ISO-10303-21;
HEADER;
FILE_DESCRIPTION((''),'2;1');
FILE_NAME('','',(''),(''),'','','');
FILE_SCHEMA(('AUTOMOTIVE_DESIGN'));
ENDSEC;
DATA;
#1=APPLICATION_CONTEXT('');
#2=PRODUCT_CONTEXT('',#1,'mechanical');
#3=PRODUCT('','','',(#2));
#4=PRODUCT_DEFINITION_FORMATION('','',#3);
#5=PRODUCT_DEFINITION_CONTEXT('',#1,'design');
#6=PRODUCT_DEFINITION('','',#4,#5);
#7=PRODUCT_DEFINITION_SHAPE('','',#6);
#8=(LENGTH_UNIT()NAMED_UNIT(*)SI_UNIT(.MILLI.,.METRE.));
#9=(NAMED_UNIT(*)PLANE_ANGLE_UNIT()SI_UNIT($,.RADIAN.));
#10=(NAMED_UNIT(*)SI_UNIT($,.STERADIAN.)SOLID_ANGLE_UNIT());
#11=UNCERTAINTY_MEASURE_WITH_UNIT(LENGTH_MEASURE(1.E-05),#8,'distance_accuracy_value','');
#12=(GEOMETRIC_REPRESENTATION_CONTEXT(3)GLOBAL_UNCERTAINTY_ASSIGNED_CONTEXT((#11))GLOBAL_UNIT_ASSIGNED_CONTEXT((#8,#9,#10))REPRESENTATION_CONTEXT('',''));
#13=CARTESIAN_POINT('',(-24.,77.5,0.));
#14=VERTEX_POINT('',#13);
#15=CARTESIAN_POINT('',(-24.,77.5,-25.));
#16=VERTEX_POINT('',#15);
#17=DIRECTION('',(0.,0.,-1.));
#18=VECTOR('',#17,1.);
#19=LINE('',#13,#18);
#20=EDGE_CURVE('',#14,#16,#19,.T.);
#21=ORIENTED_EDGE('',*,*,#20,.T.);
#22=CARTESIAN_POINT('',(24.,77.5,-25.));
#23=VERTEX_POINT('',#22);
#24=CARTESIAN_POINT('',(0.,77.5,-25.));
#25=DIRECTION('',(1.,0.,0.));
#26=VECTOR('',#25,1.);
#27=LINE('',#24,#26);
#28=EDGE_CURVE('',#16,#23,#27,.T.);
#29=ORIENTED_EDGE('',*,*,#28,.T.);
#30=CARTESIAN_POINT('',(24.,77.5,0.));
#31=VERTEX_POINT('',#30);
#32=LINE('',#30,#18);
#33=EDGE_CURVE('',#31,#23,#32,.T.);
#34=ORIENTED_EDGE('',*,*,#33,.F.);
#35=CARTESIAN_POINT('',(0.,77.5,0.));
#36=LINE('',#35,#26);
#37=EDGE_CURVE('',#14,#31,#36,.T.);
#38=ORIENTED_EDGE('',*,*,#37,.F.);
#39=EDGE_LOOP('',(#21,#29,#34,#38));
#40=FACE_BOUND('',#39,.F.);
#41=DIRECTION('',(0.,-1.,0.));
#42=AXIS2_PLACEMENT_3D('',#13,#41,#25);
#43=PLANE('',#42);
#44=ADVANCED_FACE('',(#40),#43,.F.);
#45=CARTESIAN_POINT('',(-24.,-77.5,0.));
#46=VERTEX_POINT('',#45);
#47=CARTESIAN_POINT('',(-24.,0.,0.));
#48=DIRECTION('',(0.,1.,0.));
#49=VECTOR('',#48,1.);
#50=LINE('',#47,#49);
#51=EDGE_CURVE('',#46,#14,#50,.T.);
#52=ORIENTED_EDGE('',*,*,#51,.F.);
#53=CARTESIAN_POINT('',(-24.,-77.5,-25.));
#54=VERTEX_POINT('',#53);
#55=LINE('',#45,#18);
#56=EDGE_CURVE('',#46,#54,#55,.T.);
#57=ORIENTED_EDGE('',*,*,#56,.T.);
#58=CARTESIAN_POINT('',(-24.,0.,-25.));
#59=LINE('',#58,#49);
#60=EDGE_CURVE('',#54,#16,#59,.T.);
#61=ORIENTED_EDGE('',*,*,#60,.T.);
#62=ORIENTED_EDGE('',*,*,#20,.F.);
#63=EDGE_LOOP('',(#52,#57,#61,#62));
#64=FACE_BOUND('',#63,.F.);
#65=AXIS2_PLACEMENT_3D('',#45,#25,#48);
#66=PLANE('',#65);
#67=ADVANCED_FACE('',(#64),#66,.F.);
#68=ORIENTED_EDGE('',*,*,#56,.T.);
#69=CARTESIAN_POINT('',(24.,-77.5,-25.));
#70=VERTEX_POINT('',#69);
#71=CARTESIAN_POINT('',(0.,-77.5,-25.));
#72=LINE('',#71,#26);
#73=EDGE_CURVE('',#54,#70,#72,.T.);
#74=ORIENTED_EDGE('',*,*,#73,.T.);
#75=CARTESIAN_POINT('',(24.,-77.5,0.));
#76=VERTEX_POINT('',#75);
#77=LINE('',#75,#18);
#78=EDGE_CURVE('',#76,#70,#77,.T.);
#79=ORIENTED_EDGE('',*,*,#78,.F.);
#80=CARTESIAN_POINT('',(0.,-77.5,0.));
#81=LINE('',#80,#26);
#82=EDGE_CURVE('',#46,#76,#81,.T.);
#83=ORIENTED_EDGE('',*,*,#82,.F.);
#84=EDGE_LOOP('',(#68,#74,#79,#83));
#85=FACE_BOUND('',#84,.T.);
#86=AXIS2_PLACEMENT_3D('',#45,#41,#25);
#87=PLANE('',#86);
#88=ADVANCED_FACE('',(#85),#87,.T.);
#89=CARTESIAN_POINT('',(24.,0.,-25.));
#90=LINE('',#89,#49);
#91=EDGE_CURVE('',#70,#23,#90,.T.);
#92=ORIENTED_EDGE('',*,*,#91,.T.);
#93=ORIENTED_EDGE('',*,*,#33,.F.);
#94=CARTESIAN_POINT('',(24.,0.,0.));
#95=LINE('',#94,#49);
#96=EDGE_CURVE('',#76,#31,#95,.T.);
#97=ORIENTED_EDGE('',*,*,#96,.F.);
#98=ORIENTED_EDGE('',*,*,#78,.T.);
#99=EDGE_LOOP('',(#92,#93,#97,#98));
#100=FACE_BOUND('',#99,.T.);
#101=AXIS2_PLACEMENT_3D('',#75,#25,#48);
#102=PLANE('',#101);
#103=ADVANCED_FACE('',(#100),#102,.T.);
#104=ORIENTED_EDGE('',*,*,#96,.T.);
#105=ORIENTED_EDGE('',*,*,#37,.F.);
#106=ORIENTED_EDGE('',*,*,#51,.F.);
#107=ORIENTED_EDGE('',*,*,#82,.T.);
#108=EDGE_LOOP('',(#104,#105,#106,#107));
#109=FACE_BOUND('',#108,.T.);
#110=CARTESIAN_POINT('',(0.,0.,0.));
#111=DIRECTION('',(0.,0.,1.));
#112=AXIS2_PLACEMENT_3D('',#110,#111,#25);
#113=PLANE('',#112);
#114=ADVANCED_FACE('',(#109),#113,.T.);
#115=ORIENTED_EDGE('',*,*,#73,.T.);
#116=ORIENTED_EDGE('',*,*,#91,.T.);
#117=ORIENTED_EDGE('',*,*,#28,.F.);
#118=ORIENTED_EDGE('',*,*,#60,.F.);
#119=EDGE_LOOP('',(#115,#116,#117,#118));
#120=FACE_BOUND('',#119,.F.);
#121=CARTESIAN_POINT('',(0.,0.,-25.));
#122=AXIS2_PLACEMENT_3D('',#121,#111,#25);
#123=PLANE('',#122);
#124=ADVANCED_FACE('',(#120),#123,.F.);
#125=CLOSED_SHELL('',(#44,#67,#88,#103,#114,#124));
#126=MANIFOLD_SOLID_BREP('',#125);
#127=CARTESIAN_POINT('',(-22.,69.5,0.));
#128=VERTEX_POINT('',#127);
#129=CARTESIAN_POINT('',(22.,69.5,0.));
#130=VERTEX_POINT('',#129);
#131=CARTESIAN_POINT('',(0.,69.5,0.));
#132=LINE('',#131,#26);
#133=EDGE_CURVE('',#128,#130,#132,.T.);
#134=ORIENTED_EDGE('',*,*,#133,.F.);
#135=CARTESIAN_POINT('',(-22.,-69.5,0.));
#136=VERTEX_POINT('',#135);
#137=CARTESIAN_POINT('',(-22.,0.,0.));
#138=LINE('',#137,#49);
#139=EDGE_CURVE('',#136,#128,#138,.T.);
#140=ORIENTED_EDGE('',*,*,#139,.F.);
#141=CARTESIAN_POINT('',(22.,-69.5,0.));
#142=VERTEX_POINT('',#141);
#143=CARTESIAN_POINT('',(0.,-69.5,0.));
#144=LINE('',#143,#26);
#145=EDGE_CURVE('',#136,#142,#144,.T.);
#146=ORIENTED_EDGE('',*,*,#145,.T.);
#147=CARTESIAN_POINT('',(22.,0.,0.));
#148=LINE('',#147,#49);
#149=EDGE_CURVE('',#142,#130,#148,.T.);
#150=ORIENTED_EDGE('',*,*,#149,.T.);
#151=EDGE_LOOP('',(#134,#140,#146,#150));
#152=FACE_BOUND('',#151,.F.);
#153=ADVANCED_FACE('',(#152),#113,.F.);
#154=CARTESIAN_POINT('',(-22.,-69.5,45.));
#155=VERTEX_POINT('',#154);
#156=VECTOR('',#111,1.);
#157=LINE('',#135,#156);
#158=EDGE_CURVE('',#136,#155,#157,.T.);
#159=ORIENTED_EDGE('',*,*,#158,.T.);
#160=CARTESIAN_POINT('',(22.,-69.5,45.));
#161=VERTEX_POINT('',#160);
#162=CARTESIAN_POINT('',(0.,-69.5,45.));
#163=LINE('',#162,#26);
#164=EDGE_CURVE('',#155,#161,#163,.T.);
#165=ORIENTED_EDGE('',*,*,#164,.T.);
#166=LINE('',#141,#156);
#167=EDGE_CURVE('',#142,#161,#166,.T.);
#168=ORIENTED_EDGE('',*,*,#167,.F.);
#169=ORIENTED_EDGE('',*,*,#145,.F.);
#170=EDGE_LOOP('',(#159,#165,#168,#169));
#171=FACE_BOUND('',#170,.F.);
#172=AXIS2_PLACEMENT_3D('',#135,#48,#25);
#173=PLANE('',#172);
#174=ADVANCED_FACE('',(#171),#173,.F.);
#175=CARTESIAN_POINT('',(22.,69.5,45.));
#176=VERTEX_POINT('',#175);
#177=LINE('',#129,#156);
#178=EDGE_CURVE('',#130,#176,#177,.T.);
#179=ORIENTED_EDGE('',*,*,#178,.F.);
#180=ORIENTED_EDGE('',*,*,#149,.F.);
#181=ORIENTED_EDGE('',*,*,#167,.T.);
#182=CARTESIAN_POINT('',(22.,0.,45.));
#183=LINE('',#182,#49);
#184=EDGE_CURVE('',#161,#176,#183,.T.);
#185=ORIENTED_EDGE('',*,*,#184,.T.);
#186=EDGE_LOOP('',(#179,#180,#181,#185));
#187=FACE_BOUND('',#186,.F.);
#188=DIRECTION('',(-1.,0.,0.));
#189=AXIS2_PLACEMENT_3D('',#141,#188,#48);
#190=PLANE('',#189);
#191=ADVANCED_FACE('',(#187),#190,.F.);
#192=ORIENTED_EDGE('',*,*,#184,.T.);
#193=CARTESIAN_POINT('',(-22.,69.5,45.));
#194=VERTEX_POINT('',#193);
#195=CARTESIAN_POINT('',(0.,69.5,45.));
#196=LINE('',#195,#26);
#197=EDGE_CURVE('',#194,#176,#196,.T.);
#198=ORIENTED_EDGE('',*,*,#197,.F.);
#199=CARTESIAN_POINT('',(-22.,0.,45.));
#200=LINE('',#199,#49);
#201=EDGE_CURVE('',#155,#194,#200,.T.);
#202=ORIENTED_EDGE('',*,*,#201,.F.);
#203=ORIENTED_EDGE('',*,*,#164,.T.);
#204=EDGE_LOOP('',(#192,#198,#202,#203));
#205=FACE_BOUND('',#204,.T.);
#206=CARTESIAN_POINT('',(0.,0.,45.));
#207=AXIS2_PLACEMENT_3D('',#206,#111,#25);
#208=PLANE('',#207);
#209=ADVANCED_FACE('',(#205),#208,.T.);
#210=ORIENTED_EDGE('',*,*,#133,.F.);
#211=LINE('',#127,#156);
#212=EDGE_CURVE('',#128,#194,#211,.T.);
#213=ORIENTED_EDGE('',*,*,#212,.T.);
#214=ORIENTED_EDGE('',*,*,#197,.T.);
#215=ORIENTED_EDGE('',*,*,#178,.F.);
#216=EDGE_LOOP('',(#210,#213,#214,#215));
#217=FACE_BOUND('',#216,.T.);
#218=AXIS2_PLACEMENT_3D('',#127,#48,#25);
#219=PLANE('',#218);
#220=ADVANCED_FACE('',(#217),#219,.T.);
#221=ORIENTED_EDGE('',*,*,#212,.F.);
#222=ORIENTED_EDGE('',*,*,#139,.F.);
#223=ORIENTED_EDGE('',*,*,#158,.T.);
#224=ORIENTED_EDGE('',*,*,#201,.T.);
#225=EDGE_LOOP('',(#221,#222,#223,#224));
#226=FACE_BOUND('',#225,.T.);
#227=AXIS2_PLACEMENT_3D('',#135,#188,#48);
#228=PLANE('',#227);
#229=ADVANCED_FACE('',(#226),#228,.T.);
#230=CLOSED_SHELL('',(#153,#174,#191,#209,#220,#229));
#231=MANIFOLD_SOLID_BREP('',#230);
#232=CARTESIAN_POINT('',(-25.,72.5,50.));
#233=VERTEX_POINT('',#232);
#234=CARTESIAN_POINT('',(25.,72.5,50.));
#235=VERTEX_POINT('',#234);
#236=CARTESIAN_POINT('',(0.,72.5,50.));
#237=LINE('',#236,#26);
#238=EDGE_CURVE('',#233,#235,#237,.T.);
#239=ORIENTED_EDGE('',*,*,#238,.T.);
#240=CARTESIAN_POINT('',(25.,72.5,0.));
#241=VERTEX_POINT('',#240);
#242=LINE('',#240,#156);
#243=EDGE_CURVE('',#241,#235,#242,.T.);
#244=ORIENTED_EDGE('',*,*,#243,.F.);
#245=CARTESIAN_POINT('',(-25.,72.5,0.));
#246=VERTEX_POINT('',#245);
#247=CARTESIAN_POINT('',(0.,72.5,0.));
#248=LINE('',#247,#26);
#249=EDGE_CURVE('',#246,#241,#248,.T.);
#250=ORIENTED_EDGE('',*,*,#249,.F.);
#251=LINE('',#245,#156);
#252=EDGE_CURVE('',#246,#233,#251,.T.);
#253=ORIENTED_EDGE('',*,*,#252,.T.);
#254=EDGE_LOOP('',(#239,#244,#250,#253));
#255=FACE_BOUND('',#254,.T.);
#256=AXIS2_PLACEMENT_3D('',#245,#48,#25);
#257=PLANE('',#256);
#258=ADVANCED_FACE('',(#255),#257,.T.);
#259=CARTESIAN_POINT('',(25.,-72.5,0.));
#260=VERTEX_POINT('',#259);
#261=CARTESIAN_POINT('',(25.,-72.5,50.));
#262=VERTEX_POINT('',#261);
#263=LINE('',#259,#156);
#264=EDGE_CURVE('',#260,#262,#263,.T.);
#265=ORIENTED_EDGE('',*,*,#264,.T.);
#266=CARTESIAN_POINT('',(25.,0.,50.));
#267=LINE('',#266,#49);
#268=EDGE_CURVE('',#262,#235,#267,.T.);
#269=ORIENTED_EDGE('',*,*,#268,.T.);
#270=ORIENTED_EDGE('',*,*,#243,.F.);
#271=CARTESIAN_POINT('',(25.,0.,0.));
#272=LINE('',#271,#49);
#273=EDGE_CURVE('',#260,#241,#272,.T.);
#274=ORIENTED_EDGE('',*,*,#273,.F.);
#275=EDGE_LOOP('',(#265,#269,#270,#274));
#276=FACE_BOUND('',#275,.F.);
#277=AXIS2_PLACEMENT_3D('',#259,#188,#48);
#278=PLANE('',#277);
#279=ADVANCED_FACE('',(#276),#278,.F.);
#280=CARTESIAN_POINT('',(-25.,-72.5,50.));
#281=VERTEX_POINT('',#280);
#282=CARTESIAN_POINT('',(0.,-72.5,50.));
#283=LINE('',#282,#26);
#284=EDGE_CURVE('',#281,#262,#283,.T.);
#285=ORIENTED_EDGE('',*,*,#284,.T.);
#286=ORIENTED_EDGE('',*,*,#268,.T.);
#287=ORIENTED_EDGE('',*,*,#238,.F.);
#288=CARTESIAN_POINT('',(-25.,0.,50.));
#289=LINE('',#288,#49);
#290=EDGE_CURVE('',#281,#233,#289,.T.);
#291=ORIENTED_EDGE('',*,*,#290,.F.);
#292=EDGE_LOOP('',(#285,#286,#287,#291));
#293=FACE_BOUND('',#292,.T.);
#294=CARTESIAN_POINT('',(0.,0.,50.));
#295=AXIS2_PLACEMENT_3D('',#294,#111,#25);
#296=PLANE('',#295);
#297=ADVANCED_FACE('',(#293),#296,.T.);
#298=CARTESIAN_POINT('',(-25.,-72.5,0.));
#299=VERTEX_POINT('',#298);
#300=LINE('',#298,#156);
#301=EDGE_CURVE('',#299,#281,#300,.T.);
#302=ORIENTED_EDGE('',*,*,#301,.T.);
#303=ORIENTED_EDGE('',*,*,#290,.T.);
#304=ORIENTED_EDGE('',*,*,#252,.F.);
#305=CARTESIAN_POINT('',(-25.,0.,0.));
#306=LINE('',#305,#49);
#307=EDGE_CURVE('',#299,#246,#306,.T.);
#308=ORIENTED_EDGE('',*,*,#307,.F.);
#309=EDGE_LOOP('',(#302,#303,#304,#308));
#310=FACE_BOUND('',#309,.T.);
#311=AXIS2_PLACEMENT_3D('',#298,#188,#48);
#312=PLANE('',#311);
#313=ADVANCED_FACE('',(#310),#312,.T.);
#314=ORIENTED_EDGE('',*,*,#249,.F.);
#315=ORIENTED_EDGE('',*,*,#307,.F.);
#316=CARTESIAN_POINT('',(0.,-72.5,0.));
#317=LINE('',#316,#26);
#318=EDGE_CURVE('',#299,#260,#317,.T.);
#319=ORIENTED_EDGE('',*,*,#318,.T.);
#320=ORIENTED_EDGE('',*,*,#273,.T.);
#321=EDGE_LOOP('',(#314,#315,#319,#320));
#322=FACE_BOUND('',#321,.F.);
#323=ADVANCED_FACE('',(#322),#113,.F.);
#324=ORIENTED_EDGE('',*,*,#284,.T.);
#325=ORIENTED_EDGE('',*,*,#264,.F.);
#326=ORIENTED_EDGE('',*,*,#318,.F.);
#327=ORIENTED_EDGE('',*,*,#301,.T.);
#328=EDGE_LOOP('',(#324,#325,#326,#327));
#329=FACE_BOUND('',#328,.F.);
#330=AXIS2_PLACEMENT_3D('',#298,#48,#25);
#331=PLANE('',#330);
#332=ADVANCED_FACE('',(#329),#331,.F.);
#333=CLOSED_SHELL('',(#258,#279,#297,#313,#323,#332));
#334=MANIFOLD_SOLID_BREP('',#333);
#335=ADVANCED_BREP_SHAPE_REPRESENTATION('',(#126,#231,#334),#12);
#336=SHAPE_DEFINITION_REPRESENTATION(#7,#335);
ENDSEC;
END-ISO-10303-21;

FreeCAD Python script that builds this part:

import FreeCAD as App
import Part
import Sketcher

V = App.Vector


def add_polygon(sketch, points):
    """Adds a closed chain of lines whose ends are joined by coincident constraints."""
    first, n = sketch.GeometryCount, len(points)
    for a, b in zip(points, points[1:] + points[:1]):
        sketch.addGeometry(Part.LineSegment(App.Vector(*a, 0), App.Vector(*b, 0)), False)
    for i in range(n):
        sketch.addConstraint(Sketcher.Constraint("Coincident", first + i, 2, first + (i + 1) % n, 1))

doc = App.newDocument("Part")
params = doc.addObject("Spreadsheet::Sheet", "Params")
for row, (alias, value) in enumerate([
    ("sketch1_width", "44 mm"),
    ("sketch1_height", "139 mm"),
    ("pad1_length", "45 mm"),
    ("sketch2_width", "50 mm"),
    ("sketch2_height", "145 mm"),
    ("pad2_length", "50 mm"),
    ("sketch3_width", "48 mm"),
    ("sketch3_height", "155 mm"),
    ("pad3_length", "25 mm"),
], start=1):
    params.set(f"A{row}", alias)
    params.set(f"B{row}", "=" + value)
    params.setAlias(f"B{row}", alias)

body = doc.addObject("PartDesign::Body", "Body")

# Sketch on XY plane
sketch1 = body.newObject("Sketcher::SketchObject", "Sketch")
sketch1.AttachmentSupport = (doc.getObject("XY_Plane"), [""])
sketch1.MapMode = "FlatFace"
add_polygon(sketch1, [(-22, 69.5), (-22, -69.5), (22, -69.5), (22, 69.5)])  # lines 0-3
sketch1.addConstraint([
    Sketcher.Constraint("Vertical", 0),
    Sketcher.Constraint("Horizontal", 1),
    Sketcher.Constraint("Vertical", 2),
    Sketcher.Constraint("Horizontal", 3),
    Sketcher.Constraint("Symmetric", 0, 2, 2, 2, -1, 1),
    Sketcher.Constraint("DistanceX", 1, 1, 1, 2, 44.0),
    Sketcher.Constraint("DistanceY", 0, 2, 0, 1, 139.0),
])
sketch1.setExpression("Constraints[9]", "Params.sketch1_width")
sketch1.setExpression("Constraints[10]", "Params.sketch1_height")
pad1 = body.newObject("PartDesign::Pad", "Pad")
pad1.Profile = sketch1
pad1.setExpression("Length", "Params.pad1_length")
body2 = doc.addObject("PartDesign::Body", "Body001")

# Sketch on XY plane
sketch2 = body2.newObject("Sketcher::SketchObject", "Sketch001")
sketch2.AttachmentSupport = (doc.getObject("XY_Plane001"), [""])
sketch2.MapMode = "FlatFace"
add_polygon(sketch2, [(-25, 72.5), (-25, -72.5), (25, -72.5), (25, 72.5)])  # lines 0-3
sketch2.addConstraint([
    Sketcher.Constraint("Vertical", 0),
    Sketcher.Constraint("Horizontal", 1),
    Sketcher.Constraint("Vertical", 2),
    Sketcher.Constraint("Horizontal", 3),
    Sketcher.Constraint("Symmetric", 0, 2, 2, 2, -1, 1),
    Sketcher.Constraint("DistanceX", 1, 1, 1, 2, 50.0),
    Sketcher.Constraint("DistanceY", 0, 2, 0, 1, 145.0),
])
sketch2.setExpression("Constraints[9]", "Params.sketch2_width")
sketch2.setExpression("Constraints[10]", "Params.sketch2_height")
pad2 = body2.newObject("PartDesign::Pad", "Pad001")
pad2.Profile = sketch2
pad2.setExpression("Length", "Params.pad2_length")
body3 = doc.addObject("PartDesign::Body", "Body002")

# Sketch on XY plane
sketch3 = body3.newObject("Sketcher::SketchObject", "Sketch002")
sketch3.AttachmentSupport = (doc.getObject("XY_Plane002"), [""])
sketch3.MapMode = "FlatFace"
add_polygon(sketch3, [(-24, 77.5), (-24, -77.5), (24, -77.5), (24, 77.5)])  # lines 0-3
sketch3.addConstraint([
    Sketcher.Constraint("Vertical", 0),
    Sketcher.Constraint("Horizontal", 1),
    Sketcher.Constraint("Vertical", 2),
    Sketcher.Constraint("Horizontal", 3),
    Sketcher.Constraint("Symmetric", 0, 2, 2, 2, -1, 1),
    Sketcher.Constraint("DistanceX", 1, 1, 1, 2, 48.0),
    Sketcher.Constraint("DistanceY", 0, 2, 0, 1, 155.0),
])
sketch3.setExpression("Constraints[9]", "Params.sketch3_width")
sketch3.setExpression("Constraints[10]", "Params.sketch3_height")
pad3 = body3.newObject("PartDesign::Pad", "Pad002")
pad3.Profile = sketch3
pad3.setExpression("Length", "Params.pad3_length")
pad3.Reversed = True

doc.recompute()
